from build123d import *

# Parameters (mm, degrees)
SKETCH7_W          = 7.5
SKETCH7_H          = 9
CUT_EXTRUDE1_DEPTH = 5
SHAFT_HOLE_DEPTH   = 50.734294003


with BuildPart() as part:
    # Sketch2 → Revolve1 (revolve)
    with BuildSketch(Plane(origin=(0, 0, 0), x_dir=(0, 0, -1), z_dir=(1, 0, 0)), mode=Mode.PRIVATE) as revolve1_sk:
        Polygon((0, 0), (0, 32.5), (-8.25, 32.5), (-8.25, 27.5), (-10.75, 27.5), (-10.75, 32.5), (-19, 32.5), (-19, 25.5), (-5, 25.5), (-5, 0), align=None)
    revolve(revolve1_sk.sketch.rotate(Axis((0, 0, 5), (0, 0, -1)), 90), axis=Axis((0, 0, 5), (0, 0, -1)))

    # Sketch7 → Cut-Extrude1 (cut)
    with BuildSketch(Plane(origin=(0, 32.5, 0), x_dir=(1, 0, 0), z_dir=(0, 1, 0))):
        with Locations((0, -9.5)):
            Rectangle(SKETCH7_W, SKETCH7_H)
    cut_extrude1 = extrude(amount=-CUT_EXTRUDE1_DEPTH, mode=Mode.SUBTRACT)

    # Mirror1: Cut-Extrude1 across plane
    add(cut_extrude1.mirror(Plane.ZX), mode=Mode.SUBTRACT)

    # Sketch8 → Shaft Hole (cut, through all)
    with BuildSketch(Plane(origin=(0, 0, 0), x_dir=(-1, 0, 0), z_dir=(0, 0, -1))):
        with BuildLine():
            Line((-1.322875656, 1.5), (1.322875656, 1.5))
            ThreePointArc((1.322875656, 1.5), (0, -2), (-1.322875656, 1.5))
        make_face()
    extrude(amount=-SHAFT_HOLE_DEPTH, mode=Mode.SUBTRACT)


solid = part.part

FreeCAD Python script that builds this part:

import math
import FreeCAD as App
import Part
import Sketcher
from FreeCAD import Vector
Q = App.Units.Quantity

doc = App.newDocument("Part")
body = doc.addObject("PartDesign::Body", "Body")

# Sketch on YZ plane
sketch1 = body.newObject("Sketcher::SketchObject", "Sketch")
sketch1.AttachmentSupport = (doc.getObject("YZ_Plane"), [""])
sketch1.MapMode = "FlatFace"
sketch1.addGeometry(Part.LineSegment(Vector(0, 0, 0), Vector(32.5, 0, 0)), False)
sketch1.addGeometry(Part.LineSegment(Vector(32.5, 0, 0), Vector(32.5, 8.2, 0)), False)
sketch1.addGeometry(Part.LineSegment(Vector(32.5, 8.2, 0), Vector(27.5, 8.2, 0)), False)
sketch1.addGeometry(Part.LineSegment(Vector(27.5, 8.2, 0), Vector(27.5, 10.8, 0)), False)
sketch1.addGeometry(Part.LineSegment(Vector(27.5, 10.8, 0), Vector(32.5, 10.8, 0)), False)
sketch1.addGeometry(Part.LineSegment(Vector(32.5, 10.8, 0), Vector(32.5, 19, 0)), False)
sketch1.addGeometry(Part.LineSegment(Vector(32.5, 19, 0), Vector(25.5, 19, 0)), False)
sketch1.addGeometry(Part.LineSegment(Vector(25.5, 19, 0), Vector(25.5, 5, 0)), False)
sketch1.addGeometry(Part.LineSegment(Vector(25.5, 5, 0), Vector(0, 5, 0)), False)
sketch1.addGeometry(Part.LineSegment(Vector(0, 5, 0), Vector(0, 0, 0)), False)
sketch1.addConstraint(Sketcher.Constraint("Coincident", 0, 2, 1, 1))
sketch1.addConstraint(Sketcher.Constraint("Coincident", 1, 2, 2, 1))
sketch1.addConstraint(Sketcher.Constraint("Coincident", 2, 2, 3, 1))
sketch1.addConstraint(Sketcher.Constraint("Coincident", 3, 2, 4, 1))
sketch1.addConstraint(Sketcher.Constraint("Coincident", 4, 2, 5, 1))
sketch1.addConstraint(Sketcher.Constraint("Coincident", 5, 2, 6, 1))
sketch1.addConstraint(Sketcher.Constraint("Coincident", 6, 2, 7, 1))
sketch1.addConstraint(Sketcher.Constraint("Coincident", 7, 2, 8, 1))
sketch1.addConstraint(Sketcher.Constraint("Coincident", 8, 2, 9, 1))
sketch1.addConstraint(Sketcher.Constraint("Coincident", 9, 2, 0, 1))
sketch1.addConstraint(Sketcher.Constraint("Horizontal", 0))
sketch1.addConstraint(Sketcher.Constraint("Vertical", 1))
sketch1.addConstraint(Sketcher.Constraint("Horizontal", 2))
sketch1.addConstraint(Sketcher.Constraint("Vertical", 3))
sketch1.addConstraint(Sketcher.Constraint("Horizontal", 4))
sketch1.addConstraint(Sketcher.Constraint("Vertical", 5))
sketch1.addConstraint(Sketcher.Constraint("Horizontal", 6))
sketch1.addConstraint(Sketcher.Constraint("Vertical", 7))
sketch1.addConstraint(Sketcher.Constraint("Horizontal", 8))
sketch1.addConstraint(Sketcher.Constraint("Vertical", 9))
sketch1.addConstraint(Sketcher.Constraint("Coincident", 9, 2, -1, 1))
sketch1.addConstraint(Sketcher.Constraint("Vertical", 1, 2, 4, 2))
sketch1.addConstraint(Sketcher.Constraint("Equal", 1, 5))
sketch1.addConstraint(Sketcher.Constraint("Equal", 4, 9))
sketch1.addConstraint(Sketcher.Constraint("DistanceX", 2, 2, 2, 1, Q("5 mm")))
sketch1.addConstraint(Sketcher.Constraint("DistanceX", 6, 2, 6, 1, Q("7 mm")))
sketch1.addConstraint(Sketcher.Constraint("DistanceY", 7, 2, 7, 1, Q("14 mm")))
sketch1.addConstraint(Sketcher.Constraint("DistanceX", 0, 1, 0, 2, Q("32.5 mm")))
sketch1.addConstraint(Sketcher.Constraint("DistanceY", 3, 1, 3, 2, Q("2.5 mm")))
revolution = body.newObject("PartDesign::Revolution", "Revolution")
revolution.Profile = sketch1
revolution.ReferenceAxis = (sketch1, ["V_Axis"])
revolution.Angle = 360

# Sketch on XZ plane
sketch2 = body.newObject("Sketcher::SketchObject", "Sketch001")
sketch2.AttachmentSupport = (doc.getObject("XZ_Plane"), [""])
sketch2.MapMode = "FlatFace"
sketch2.AttachmentOffset = App.Placement(Vector(0, 0, -32.5), App.Rotation())
sketch2.addGeometry(Part.LineSegment(Vector(-4, 5, 0), Vector(-4, 14, 0)), False)
sketch2.addGeometry(Part.LineSegment(Vector(-4, 14, 0), Vector(4, 14, 0)), False)
sketch2.addGeometry(Part.LineSegment(Vector(4, 14, 0), Vector(4, 5, 0)), False)
sketch2.addGeometry(Part.LineSegment(Vector(4, 5, 0), Vector(-4, 5, 0)), False)
sketch2.addConstraint(Sketcher.Constraint("Coincident", 0, 2, 1, 1))
sketch2.addConstraint(Sketcher.Constraint("Coincident", 1, 2, 2, 1))
sketch2.addConstraint(Sketcher.Constraint("Coincident", 2, 2, 3, 1))
sketch2.addConstraint(Sketcher.Constraint("Coincident", 3, 2, 0, 1))
sketch2.addConstraint(Sketcher.Constraint("Vertical", 0))
sketch2.addConstraint(Sketcher.Constraint("Horizontal", 1))
sketch2.addConstraint(Sketcher.Constraint("Vertical", 2))
sketch2.addConstraint(Sketcher.Constraint("Horizontal", 3))
sketch2.addConstraint(Sketcher.Constraint("DistanceY", 0, 1, 0, 2, Q("9 mm")))
sketch2.addConstraint(Sketcher.Constraint("DistanceX", 1, 1, 1, 2, Q("7.5 mm")))
sketch2.addConstraint(Sketcher.Constraint("DistanceY", -1, 1, 0, 2, Q("14 mm")))
sketch2.addConstraint(Sketcher.Constraint("DistanceX", 0, 2, -1, 1, Q("3.75 mm")))
pocket1 = body.newObject("PartDesign::Pocket", "Pocket")
pocket1.Profile = sketch2
pocket1.Length = 5
pocket1.Reversed = True
doc.recompute()

mirrored = body.newObject("PartDesign::Mirrored", "Mirrored")
mirrored.Originals = [pocket1]
mirrored.MirrorPlane = (doc.getObject("XZ_Plane"), [""])
body.Tip = mirrored

# Sketch on XY plane
sketch3 = body.newObject("Sketcher::SketchObject", "Sketch002")
sketch3.AttachmentSupport = (doc.getObject("XY_Plane"), [""])
sketch3.MapMode = "FlatFace"
sketch3.addGeometry(Part.LineSegment(Vector(-1.3, 1.5, 0), Vector(1.3, 1.5, 0)), False)
sketch3.addGeometry(Part.ArcOfCircle(Part.Circle(Vector(0, 0, 0), Vector(0, 0, 1), 2), math.radians(131), math.radians(409)), False)
sketch3.addConstraint(Sketcher.Constraint("Coincident", 0, 1, 1, 1))
sketch3.addConstraint(Sketcher.Constraint("Coincident", 1, 2, 0, 2))
sketch3.addConstraint(Sketcher.Constraint("Horizontal", 0))
sketch3.addConstraint(Sketcher.Constraint("Coincident", 1, 3, -1, 1))
sketch3.addConstraint(Sketcher.Constraint("Radius", 1, Q("2 mm")))
sketch3.addConstraint(Sketcher.Constraint("DistanceY", -1, 1, 0, 1, Q("1.5 mm")))
pocket2 = body.newObject("PartDesign::Pocket", "Pocket001")
pocket2.Profile = sketch3
pocket2.Type = "ThroughAll"
pocket2.Reversed = True

doc.recompute()
